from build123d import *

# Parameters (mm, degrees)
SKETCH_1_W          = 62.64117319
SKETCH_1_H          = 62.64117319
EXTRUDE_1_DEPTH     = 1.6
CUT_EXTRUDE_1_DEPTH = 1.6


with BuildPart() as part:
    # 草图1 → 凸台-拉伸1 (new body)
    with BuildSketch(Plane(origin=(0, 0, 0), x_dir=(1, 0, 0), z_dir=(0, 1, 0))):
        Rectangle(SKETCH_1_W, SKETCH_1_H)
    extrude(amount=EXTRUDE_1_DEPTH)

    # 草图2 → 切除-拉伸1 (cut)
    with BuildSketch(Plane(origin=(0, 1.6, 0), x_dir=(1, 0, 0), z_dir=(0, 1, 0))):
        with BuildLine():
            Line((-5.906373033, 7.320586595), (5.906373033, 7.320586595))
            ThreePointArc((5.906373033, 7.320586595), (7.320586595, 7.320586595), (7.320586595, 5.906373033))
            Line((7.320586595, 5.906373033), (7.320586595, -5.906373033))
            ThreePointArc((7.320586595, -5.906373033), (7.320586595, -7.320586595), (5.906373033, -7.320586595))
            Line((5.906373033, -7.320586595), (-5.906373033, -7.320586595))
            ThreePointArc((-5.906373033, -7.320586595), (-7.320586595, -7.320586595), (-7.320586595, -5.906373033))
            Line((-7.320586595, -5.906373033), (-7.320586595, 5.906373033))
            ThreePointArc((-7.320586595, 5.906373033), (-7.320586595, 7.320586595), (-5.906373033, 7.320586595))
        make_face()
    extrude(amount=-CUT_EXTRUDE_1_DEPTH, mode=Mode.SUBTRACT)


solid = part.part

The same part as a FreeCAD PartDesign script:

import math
import FreeCAD as App
import Part
import Sketcher

V = App.Vector
Q = App.Units.Quantity

doc = App.newDocument("Part")
body = doc.addObject("PartDesign::Body", "Body")

sketch1 = doc.addObject("Sketcher::SketchObject", "Sketch")
body.addObject(sketch1)
sketch1.AttachmentSupport = (doc.XZ_Plane, [""])
sketch1.MapMode = "FlatFace"
sketch1.addGeometry([
    Part.LineSegment(V(-31, -31, 0), V(-31, 31, 0)),
    Part.LineSegment(V(-31, 31, 0), V(31, 31, 0)),
    Part.LineSegment(V(31, 31, 0), V(31, -31, 0)),
    Part.LineSegment(V(31, -31, 0), V(-31, -31, 0)),
], False)
sketch1.addConstraint([
    Sketcher.Constraint("Coincident", 0, 2, 1, 1),
    Sketcher.Constraint("Coincident", 1, 2, 2, 1),
    Sketcher.Constraint("Coincident", 2, 2, 3, 1),
    Sketcher.Constraint("Coincident", 3, 2, 0, 1),
    Sketcher.Constraint("Vertical", 0),
    Sketcher.Constraint("Horizontal", 1),
    Sketcher.Constraint("Vertical", 2),
    Sketcher.Constraint("Horizontal", 3),
    Sketcher.Constraint("Symmetric", 0, 2, 2, 2, -1, 1),
    Sketcher.Constraint("Equal", 3, 0),
    Sketcher.Constraint("DistanceX", 1, 1, 1, 2, Q("62.641173 mm")),
])
pad1 = doc.addObject("PartDesign::Pad", "Pad")
body.addObject(pad1)
pad1.Profile = sketch1
pad1.Length = 1.6
pad1.Reversed = True

sketch2 = doc.addObject("Sketcher::SketchObject", "Sketch001")
body.addObject(sketch2)
sketch2.AttachmentSupport = (doc.XZ_Plane, [""])
sketch2.MapMode = "FlatFace"
sketch2.AttachmentOffset = App.Placement(V(0, 0, -1.6), App.Rotation())
sketch2.addGeometry([
    Part.LineSegment(V(5.9, -7.3, 0), V(-5.9, -7.3, 0)),
    Part.ArcOfCircle(Part.Circle(V(-6.6, -6.6, 0), V(0, 0, 1), 1), math.radians(135), math.radians(315)),
    Part.LineSegment(V(-7.3, -5.9, 0), V(-7.3, 5.9, 0)),
    Part.ArcOfCircle(Part.Circle(V(-6.6, 6.6, 0), V(0, 0, 1), 1), math.radians(45), math.radians(225)),
    Part.LineSegment(V(-5.9, 7.3, 0), V(5.9, 7.3, 0)),
    Part.ArcOfCircle(Part.Circle(V(6.6, 6.6, 0), V(0, 0, 1), 1), math.radians(-45), math.radians(135)),
    Part.LineSegment(V(7.3, 5.9, 0), V(7.3, -5.9, 0)),
    Part.ArcOfCircle(Part.Circle(V(6.6, -6.6, 0), V(0, 0, 1), 1), math.radians(-135), math.radians(45)),
], False)
sketch2.addConstraint([
    Sketcher.Constraint("Coincident", 0, 2, 1, 2),
    Sketcher.Constraint("Coincident", 1, 1, 2, 1),
    Sketcher.Constraint("Coincident", 2, 2, 3, 2),
    Sketcher.Constraint("Coincident", 3, 1, 4, 1),
    Sketcher.Constraint("Coincident", 4, 2, 5, 2),
    Sketcher.Constraint("Coincident", 5, 1, 6, 1),
    Sketcher.Constraint("Coincident", 6, 2, 7, 2),
    Sketcher.Constraint("Coincident", 7, 1, 0, 1),
    Sketcher.Constraint("Horizontal", 0),
    Sketcher.Constraint("Vertical", 2),
    Sketcher.Constraint("Horizontal", 4),
    Sketcher.Constraint("Vertical", 6),
    Sketcher.Constraint("Equal", 1, 3),
    Sketcher.Constraint("Equal", 3, 5),
    Sketcher.Constraint("Equal", 5, 7),
    Sketcher.Constraint("Symmetric", 1, 3, 5, 3, -1, 1),
    Sketcher.Constraint("Symmetric", 3, 3, 7, 3, -1, 1),
    Sketcher.Constraint("Symmetric", 3, 3, 5, 3, -2),
    Sketcher.Constraint("Horizontal", 2, 2, 5, 1),
    Sketcher.Constraint("Vertical", 0, 2, 3, 1),
    Sketcher.Constraint("Equal", 4, 2),
    Sketcher.Constraint("Radius", 1, Q("1 mm")),
    Sketcher.Constraint("DistanceX", 0, 2, 0, 1, Q("11.812746 mm")),
    Sketcher.Constraint("DistanceX", 1, 3, -1, 1, Q("6.61348 mm")),
    Sketcher.Constraint("DistanceY", 1, 3, -1, 1, Q("6.61348 mm")),
])
pocket1 = doc.addObject("PartDesign::Pocket", "Pocket")
body.addObject(pocket1)
pocket1.Profile = sketch2
pocket1.Length = 1.6
pocket1.Reversed = True

doc.recompute()
